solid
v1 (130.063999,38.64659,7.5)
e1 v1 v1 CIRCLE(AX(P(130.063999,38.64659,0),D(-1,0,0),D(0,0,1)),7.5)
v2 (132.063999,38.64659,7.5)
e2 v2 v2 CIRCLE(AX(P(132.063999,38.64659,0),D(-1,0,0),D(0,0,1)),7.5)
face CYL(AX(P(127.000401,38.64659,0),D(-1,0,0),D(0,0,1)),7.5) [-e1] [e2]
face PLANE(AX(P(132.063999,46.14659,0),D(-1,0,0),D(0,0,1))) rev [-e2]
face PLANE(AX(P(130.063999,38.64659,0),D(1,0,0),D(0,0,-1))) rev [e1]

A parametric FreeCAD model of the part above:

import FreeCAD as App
import Part
import Sketcher
from FreeCAD import Vector
Q = App.Units.Quantity


def add_polygon(sketch, points):
    """Adds a closed chain of lines whose ends are joined by coincident constraints."""
    first, n = sketch.GeometryCount, len(points)
    for a, b in zip(points, points[1:] + points[:1]):
        sketch.addGeometry(Part.LineSegment(App.Vector(*a, 0), App.Vector(*b, 0)), False)
    for i in range(n):
        sketch.addConstraint(Sketcher.Constraint("Coincident", first + i, 2, first + (i + 1) % n, 1))

doc = App.newDocument("Part")
body = doc.addObject("PartDesign::Body", "Body")

sketch1 = body.newObject("Sketcher::SketchObject", "Sketch")
sketch1.AttachmentSupport = (doc.getObject("XY_Plane"), [""])
sketch1.MapMode = "FlatFace"
add_polygon(sketch1, [(130.1, 46.1), (130.1, 38.6), (132.1, 38.6), (132.1, 46.1)])
sketch1.addGeometry(Part.LineSegment(Vector(130.1, 38.6, 0), Vector(132.1, 38.6, 0)), True)
sketch1.addConstraint([
    Sketcher.Constraint("Vertical", 0),
    Sketcher.Constraint("Horizontal", 1),
    Sketcher.Constraint("Vertical", 2),
    Sketcher.Constraint("Horizontal", 3),
    Sketcher.Constraint("Horizontal", 4),
    Sketcher.Constraint("Coincident", 4, 1, 0, 2),
    Sketcher.Constraint("Vertical", 2, 2, 4, 2),
    Sketcher.Constraint("DistanceX", 1, 1, 1, 2, Q("2 mm")),
    Sketcher.Constraint("DistanceY", 0, 2, 0, 1, Q("7.5 mm")),
    Sketcher.Constraint("DistanceX", -1, 1, 0, 2, Q("130.063999 mm")),
    Sketcher.Constraint("DistanceY", -1, 1, 0, 2, Q("38.64659 mm")),
])
revolution = body.newObject("PartDesign::Revolution", "Revolution")
revolution.Profile = sketch1
revolution.ReferenceAxis = (sketch1, ["Axis0"])
revolution.Angle = 360

doc.recompute()
